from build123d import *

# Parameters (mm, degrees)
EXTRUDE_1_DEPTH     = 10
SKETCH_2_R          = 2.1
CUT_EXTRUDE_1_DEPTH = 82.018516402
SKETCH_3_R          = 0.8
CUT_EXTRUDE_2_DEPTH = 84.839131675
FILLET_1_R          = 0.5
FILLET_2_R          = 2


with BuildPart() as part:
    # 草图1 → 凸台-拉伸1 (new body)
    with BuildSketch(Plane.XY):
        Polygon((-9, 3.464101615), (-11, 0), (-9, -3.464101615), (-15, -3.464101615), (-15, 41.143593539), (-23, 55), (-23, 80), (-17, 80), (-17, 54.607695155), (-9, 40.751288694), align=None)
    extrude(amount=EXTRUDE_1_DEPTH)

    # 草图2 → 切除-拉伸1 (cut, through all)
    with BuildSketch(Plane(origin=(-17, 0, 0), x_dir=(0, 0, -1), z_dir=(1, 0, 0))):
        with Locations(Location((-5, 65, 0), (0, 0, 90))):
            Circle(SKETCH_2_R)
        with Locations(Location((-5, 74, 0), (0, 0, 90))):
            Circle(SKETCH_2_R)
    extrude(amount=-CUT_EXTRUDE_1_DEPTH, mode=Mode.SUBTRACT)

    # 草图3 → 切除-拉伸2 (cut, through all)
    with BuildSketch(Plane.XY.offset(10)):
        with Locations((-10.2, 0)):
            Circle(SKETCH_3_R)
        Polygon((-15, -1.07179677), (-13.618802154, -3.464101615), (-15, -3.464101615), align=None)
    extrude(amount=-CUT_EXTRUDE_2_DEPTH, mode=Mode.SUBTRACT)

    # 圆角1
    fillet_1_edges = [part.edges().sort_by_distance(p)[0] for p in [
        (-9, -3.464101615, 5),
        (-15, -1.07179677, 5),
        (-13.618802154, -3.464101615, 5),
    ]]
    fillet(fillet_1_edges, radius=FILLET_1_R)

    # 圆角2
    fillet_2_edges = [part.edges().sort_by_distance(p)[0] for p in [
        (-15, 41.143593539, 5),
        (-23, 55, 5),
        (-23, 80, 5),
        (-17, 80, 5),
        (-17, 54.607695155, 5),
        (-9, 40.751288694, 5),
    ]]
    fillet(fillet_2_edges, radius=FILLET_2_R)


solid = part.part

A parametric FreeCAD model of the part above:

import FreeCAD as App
import Part
import Sketcher

V = App.Vector
Q = App.Units.Quantity


def edges_at(feature, points):
    """Names of the edges that pass closest to the given points."""
    edges = feature.Shape.Edges
    near = lambda p: min(range(len(edges)), key=lambda i: edges[i].distToShape(Part.Vertex(*p))[0])
    return sorted({f"Edge{near(p) + 1}" for p in points})

doc = App.newDocument("Part")
body = doc.addObject("PartDesign::Body", "Body")

# Sketch on XY plane
sketch1 = body.newObject("Sketcher::SketchObject", "Sketch")
sketch1.AttachmentSupport = (doc.getObject("XY_Plane"), [""])
sketch1.MapMode = "FlatFace"
sketch1.addGeometry([
    Part.LineSegment(V(-11, 0, 0), V(-9, 3.464102, 0)),  # 0
    Part.LineSegment(V(-9, 3.464102, 0), V(-9, 40.751289, 0)),  # 1
    Part.LineSegment(V(-9, 40.751289, 0), V(-17, 54.607695, 0)),  # 2
    Part.LineSegment(V(-17, 54.607695, 0), V(-17, 80, 0)),  # 3
    Part.LineSegment(V(-17, 80, 0), V(-23, 80, 0)),  # 4
    Part.LineSegment(V(-23, 80, 0), V(-23, 55, 0)),  # 5
    Part.LineSegment(V(-23, 55, 0), V(-15, 41.143594, 0)),  # 6
    Part.LineSegment(V(-15, 41.143594, 0), V(-15, -3.464102, 0)),  # 7
    Part.LineSegment(V(-15, -3.464102, 0), V(-9, -3.464102, 0)),  # 8
    Part.LineSegment(V(-9, -3.464102, 0), V(-11, 0, 0)),  # 9
], False)
sketch1.addConstraint([
    Sketcher.Constraint("Coincident", 0, 2, 1, 1),
    Sketcher.Constraint("Coincident", 1, 2, 2, 1),
    Sketcher.Constraint("Coincident", 2, 2, 3, 1),
    Sketcher.Constraint("Coincident", 3, 2, 4, 1),
    Sketcher.Constraint("Coincident", 4, 2, 5, 1),
    Sketcher.Constraint("Coincident", 5, 2, 6, 1),
    Sketcher.Constraint("Coincident", 6, 2, 7, 1),
    Sketcher.Constraint("Coincident", 7, 2, 8, 1),
    Sketcher.Constraint("Coincident", 8, 2, 9, 1),
    Sketcher.Constraint("Coincident", 9, 2, 0, 1),
    Sketcher.Constraint("Vertical", 1),
    Sketcher.Constraint("Vertical", 3),
    Sketcher.Constraint("Horizontal", 4),
    Sketcher.Constraint("Vertical", 5),
    Sketcher.Constraint("Vertical", 7),
    Sketcher.Constraint("Horizontal", 8),
    Sketcher.Constraint("Symmetric", 0, 2, 8, 2, -1),
    Sketcher.Constraint("PointOnObject", 9, 2, -1),
    Sketcher.Constraint("Parallel", 2, 6),
    Sketcher.Constraint("Parallel", 6, 9),
    Sketcher.Constraint("Equal", 4, 8),
    Sketcher.Constraint("DistanceX", 4, 2, 4, 1, Q("6 mm")),
    Sketcher.Constraint("DistanceY", 5, 2, 5, 1, Q("25 mm")),
    Sketcher.Constraint("Angle", 0, Q("60 deg")),
    Sketcher.Constraint("Distance", 0, Q("4 mm")),
    Sketcher.Constraint("Distance", 2, Q("16 mm")),
    Sketcher.Constraint("DistanceX", 0, 2, -1, 1, Q("9 mm")),
    Sketcher.Constraint("DistanceY", -1, 1, 3, 2, Q("80 mm")),
    Sketcher.Constraint("DistanceY", 6, 2, 2, 2, Q("13.464102 mm")),
])
pad1 = body.newObject("PartDesign::Pad", "Pad")
pad1.Profile = sketch1
pad1.Length = 10

# Sketch on YZ plane
sketch2 = body.newObject("Sketcher::SketchObject", "Sketch001")
sketch2.AttachmentSupport = (doc.getObject("YZ_Plane"), [""])
sketch2.MapMode = "FlatFace"
sketch2.AttachmentOffset = App.Placement(V(0, 0, -17), App.Rotation())
sketch2.addGeometry([
    Part.Circle(V(65, 5, 0), V(0, 0, 1), 2.1),
    Part.Circle(V(74, 5, 0), V(0, 0, 1), 2.1),
], False)
sketch2.addConstraint([
    Sketcher.Constraint("Equal", 0, 1),
    Sketcher.Constraint("Horizontal", 0, 3, 1, 3),
    Sketcher.Constraint("Diameter", 0, Q("4.2 mm")),
    Sketcher.Constraint("DistanceX", -1, 1, 0, 3, Q("65 mm")),
    Sketcher.Constraint("DistanceY", -1, 1, 0, 3, Q("5 mm")),
    Sketcher.Constraint("DistanceX", -1, 1, 1, 3, Q("74 mm")),
])
pocket1 = body.newObject("PartDesign::Pocket", "Pocket")
pocket1.Profile = sketch2
pocket1.Type = "ThroughAll"

# Sketch on XY plane
sketch3 = body.newObject("Sketcher::SketchObject", "Sketch002")
sketch3.AttachmentSupport = (doc.getObject("XY_Plane"), [""])
sketch3.MapMode = "FlatFace"
sketch3.AttachmentOffset = App.Placement(V(0, 0, 10), App.Rotation())
sketch3.addGeometry([
    Part.Circle(V(-10.2, 0, 0), V(0, 0, 1), 0.8),
    Part.LineSegment(V(-13.618802, -3.464102, 0), V(-15, -1.071797, 0)),
    Part.LineSegment(V(-15, -1.071797, 0), V(-15, -3.464102, 0)),
    Part.LineSegment(V(-15, -3.464102, 0), V(-13.618802, -3.464102, 0)),
], False)
sketch3.addConstraint([
    Sketcher.Constraint("Coincident", 1, 2, 2, 1),
    Sketcher.Constraint("Coincident", 2, 2, 3, 1),
    Sketcher.Constraint("Coincident", 3, 2, 1, 1),
    Sketcher.Constraint("Vertical", 2),
    Sketcher.Constraint("Horizontal", 3),
    Sketcher.Constraint("PointOnObject", 0, 3, -1),
    Sketcher.Constraint("Diameter", 0, Q("1.6 mm")),
    Sketcher.Constraint("Angle", 1, Q("120 deg")),
    Sketcher.Constraint("DistanceX", 1, 2, -1, 1, Q("15 mm")),
    Sketcher.Constraint("DistanceX", 0, 3, -1, 1, Q("10.2 mm")),
    Sketcher.Constraint("DistanceY", 2, 2, -1, 1, Q("3.464102 mm")),
    Sketcher.Constraint("DistanceX", 3, 1, 3, 2, Q("1.381198 mm")),
])
pocket2 = body.newObject("PartDesign::Pocket", "Pocket001")
pocket2.Profile = sketch3
pocket2.Type = "ThroughAll"
doc.recompute()

fillet = body.newObject("PartDesign::Fillet", "Fillet")
fillet.Base = (pocket2, edges_at(pocket2, [(-9, -3.464, 5), (-15, -1.072, 5), (-13.619, -3.464, 5)]))
fillet.Radius = 0.5
doc.recompute()

fillet2 = body.newObject("PartDesign::Fillet", "Fillet001")
fillet2.Base = (fillet, edges_at(fillet, [
    (-15, 41.144, 5),
    (-23, 55, 5),
    (-23, 80, 5),
    (-17, 80, 5),
    (-17, 54.608, 5),
    (-9, 40.751, 5),
]))
fillet2.Radius = 2

doc.recompute()
